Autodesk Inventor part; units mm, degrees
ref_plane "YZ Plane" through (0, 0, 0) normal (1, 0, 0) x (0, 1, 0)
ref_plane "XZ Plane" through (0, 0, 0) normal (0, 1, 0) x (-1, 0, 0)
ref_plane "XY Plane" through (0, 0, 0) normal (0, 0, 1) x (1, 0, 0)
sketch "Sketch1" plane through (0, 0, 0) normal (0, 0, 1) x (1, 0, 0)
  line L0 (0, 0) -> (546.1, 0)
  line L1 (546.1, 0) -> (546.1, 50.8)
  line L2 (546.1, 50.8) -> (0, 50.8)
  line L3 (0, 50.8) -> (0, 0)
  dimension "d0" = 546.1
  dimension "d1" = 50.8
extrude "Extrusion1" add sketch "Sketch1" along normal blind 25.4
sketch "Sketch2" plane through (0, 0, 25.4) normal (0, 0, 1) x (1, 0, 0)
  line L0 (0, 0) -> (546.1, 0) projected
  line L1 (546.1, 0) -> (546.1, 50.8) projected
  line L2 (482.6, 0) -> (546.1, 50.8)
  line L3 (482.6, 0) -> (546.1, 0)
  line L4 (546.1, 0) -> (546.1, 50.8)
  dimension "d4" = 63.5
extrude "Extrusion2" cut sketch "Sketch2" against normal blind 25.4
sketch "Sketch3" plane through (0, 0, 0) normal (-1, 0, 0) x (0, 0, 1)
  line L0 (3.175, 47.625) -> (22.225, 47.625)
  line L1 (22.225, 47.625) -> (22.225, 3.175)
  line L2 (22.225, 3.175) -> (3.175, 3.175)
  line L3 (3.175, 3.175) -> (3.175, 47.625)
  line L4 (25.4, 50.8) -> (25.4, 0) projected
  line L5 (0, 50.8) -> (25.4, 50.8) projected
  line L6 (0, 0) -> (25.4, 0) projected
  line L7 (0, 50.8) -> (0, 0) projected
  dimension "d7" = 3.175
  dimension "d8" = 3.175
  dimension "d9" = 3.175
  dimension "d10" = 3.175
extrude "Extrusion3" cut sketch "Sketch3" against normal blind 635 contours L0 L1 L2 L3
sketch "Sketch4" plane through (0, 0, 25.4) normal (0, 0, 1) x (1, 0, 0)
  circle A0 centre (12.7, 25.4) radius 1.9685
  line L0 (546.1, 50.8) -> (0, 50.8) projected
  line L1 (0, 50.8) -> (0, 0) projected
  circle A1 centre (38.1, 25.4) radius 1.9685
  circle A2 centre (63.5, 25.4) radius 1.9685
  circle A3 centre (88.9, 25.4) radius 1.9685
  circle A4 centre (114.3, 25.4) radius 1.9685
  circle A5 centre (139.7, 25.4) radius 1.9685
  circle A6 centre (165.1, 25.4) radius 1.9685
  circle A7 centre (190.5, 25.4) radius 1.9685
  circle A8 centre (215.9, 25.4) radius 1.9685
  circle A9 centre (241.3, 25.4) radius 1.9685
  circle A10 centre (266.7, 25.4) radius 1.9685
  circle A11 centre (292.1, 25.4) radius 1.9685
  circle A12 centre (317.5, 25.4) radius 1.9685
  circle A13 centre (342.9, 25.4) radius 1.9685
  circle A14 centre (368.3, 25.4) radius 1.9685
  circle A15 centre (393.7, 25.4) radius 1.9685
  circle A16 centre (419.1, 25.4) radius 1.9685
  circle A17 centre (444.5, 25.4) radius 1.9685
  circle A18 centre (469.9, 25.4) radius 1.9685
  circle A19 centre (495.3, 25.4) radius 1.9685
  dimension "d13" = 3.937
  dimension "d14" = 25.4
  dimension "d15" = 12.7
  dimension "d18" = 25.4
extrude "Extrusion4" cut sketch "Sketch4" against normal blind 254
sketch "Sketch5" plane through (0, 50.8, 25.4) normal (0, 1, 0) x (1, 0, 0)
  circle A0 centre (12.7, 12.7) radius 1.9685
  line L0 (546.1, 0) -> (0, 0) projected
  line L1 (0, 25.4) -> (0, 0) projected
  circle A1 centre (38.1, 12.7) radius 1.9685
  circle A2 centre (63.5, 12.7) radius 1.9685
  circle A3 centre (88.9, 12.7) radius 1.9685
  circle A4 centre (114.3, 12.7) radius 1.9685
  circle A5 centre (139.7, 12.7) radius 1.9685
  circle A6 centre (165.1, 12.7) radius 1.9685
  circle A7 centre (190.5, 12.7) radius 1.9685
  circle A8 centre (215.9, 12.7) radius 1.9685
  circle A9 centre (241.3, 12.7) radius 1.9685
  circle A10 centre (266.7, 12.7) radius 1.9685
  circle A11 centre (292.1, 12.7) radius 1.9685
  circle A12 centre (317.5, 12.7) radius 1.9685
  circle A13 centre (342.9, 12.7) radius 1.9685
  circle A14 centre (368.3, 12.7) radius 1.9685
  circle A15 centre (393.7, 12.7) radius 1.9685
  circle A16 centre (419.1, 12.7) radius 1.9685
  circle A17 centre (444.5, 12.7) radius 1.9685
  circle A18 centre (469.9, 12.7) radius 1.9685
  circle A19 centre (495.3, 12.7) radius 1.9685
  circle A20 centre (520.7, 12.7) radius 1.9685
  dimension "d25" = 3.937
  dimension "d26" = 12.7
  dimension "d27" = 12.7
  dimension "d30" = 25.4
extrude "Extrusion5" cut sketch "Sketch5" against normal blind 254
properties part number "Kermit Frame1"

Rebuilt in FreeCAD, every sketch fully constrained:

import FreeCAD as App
import Part
import Sketcher
Q = App.Units.Quantity


def add_polygon(sketch, points):
    """Adds a closed chain of lines whose ends are joined by coincident constraints."""
    first, n = sketch.GeometryCount, len(points)
    for a, b in zip(points, points[1:] + points[:1]):
        sketch.addGeometry(Part.LineSegment(App.Vector(*a, 0), App.Vector(*b, 0)), False)
    for i in range(n):
        sketch.addConstraint(Sketcher.Constraint("Coincident", first + i, 2, first + (i + 1) % n, 1))

doc = App.newDocument("Part")
body = doc.addObject("PartDesign::Body", "Body")

sketch1 = doc.addObject("Sketcher::SketchObject", "Sketch")
body.addObject(sketch1)
sketch1.AttachmentSupport = (doc.XY_Plane, [""])
sketch1.MapMode = "FlatFace"
add_polygon(sketch1, [(0, 51), (0, 0), (546, 0), (546, 51)])
sketch1.addConstraint(Sketcher.Constraint("Vertical", 0))
sketch1.addConstraint(Sketcher.Constraint("Horizontal", 1))
sketch1.addConstraint(Sketcher.Constraint("Vertical", 2))
sketch1.addConstraint(Sketcher.Constraint("Horizontal", 3))
sketch1.addConstraint(Sketcher.Constraint("Coincident", 0, 2, -1, 1))
sketch1.addConstraint(Sketcher.Constraint("DistanceY", 0, 2, 0, 1, Q("2 in")))
sketch1.addConstraint(Sketcher.Constraint("DistanceX", 1, 1, 1, 2, Q("21.5 in")))
pad1 = doc.addObject("PartDesign::Pad", "Pad")
body.addObject(pad1)
pad1.Profile = sketch1
pad1.Length = Q("1 in")

sketch2 = doc.addObject("Sketcher::SketchObject", "Sketch001")
body.addObject(sketch2)
sketch2.AttachmentSupport = (doc.XY_Plane, [""])
sketch2.MapMode = "FlatFace"
sketch2.AttachmentOffset = App.Placement(App.Vector(0, 0, 1 * 25.4), App.Rotation())
add_polygon(sketch2, [(546, 51), (483, 0), (546, 0)])
sketch2.addConstraint(Sketcher.Constraint("Horizontal", 1))
sketch2.addConstraint(Sketcher.Constraint("Vertical", 2))
sketch2.addConstraint(Sketcher.Constraint("PointOnObject", 0, 2, -1))
sketch2.addConstraint(Sketcher.Constraint("DistanceX", 1, 1, 1, 2, Q("2.5 in")))
sketch2.addConstraint(Sketcher.Constraint("DistanceY", 2, 1, 2, 2, Q("2 in")))
sketch2.addConstraint(Sketcher.Constraint("DistanceX", -1, 1, 0, 2, Q("19 in")))
pocket1 = doc.addObject("PartDesign::Pocket", "Pocket")
body.addObject(pocket1)
pocket1.Profile = sketch2
pocket1.Length = Q("1 in")

sketch3 = doc.addObject("Sketcher::SketchObject", "Sketch002")
body.addObject(sketch3)
sketch3.AttachmentSupport = (doc.YZ_Plane, [""])
sketch3.MapMode = "FlatFace"
add_polygon(sketch3, [(48, 22), (48, 3), (3, 3), (3, 22)])
sketch3.addConstraint(Sketcher.Constraint("Vertical", 0))
sketch3.addConstraint(Sketcher.Constraint("Horizontal", 1))
sketch3.addConstraint(Sketcher.Constraint("Vertical", 2))
sketch3.addConstraint(Sketcher.Constraint("Horizontal", 3))
sketch3.addConstraint(Sketcher.Constraint("DistanceY", -1, 1, 0, 2, Q("0.125 in")))
sketch3.addConstraint(Sketcher.Constraint("DistanceX", -1, 1, 1, 2, Q("0.125 in")))
sketch3.addConstraint(Sketcher.Constraint("DistanceX", 1, 2, 1, 1, Q("1.75 in")))
sketch3.addConstraint(Sketcher.Constraint("DistanceY", 0, 2, 0, 1, Q("0.75 in")))
pocket2 = doc.addObject("PartDesign::Pocket", "Pocket001")
body.addObject(pocket2)
pocket2.Profile = sketch3
pocket2.Length = Q("25 in")
pocket2.Reversed = True

sketch4 = doc.addObject("Sketcher::SketchObject", "Sketch003")
body.addObject(sketch4)
sketch4.AttachmentSupport = (doc.XY_Plane, [""])
sketch4.MapMode = "FlatFace"
sketch4.AttachmentOffset = App.Placement(App.Vector(0, 0, 1 * 25.4), App.Rotation())
sketch4.addGeometry(Part.Circle(App.Vector(12.7, 25.4, 0), App.Vector(0, 0, 1), 2), False)
sketch4.addGeometry(Part.Circle(App.Vector(38.1, 25.4, 0), App.Vector(0, 0, 1), 2), False)
sketch4.addGeometry(Part.Circle(App.Vector(63.5, 25.4, 0), App.Vector(0, 0, 1), 2), False)
sketch4.addGeometry(Part.Circle(App.Vector(88.9, 25.4, 0), App.Vector(0, 0, 1), 2), False)
sketch4.addGeometry(Part.Circle(App.Vector(114.3, 25.4, 0), App.Vector(0, 0, 1), 2), False)
sketch4.addGeometry(Part.Circle(App.Vector(139.7, 25.4, 0), App.Vector(0, 0, 1), 2), False)
sketch4.addGeometry(Part.Circle(App.Vector(165.1, 25.4, 0), App.Vector(0, 0, 1), 2), False)
sketch4.addGeometry(Part.Circle(App.Vector(190.5, 25.4, 0), App.Vector(0, 0, 1), 2), False)
sketch4.addGeometry(Part.Circle(App.Vector(215.9, 25.4, 0), App.Vector(0, 0, 1), 2), False)
sketch4.addGeometry(Part.Circle(App.Vector(241.3, 25.4, 0), App.Vector(0, 0, 1), 2), False)
sketch4.addGeometry(Part.Circle(App.Vector(266.7, 25.4, 0), App.Vector(0, 0, 1), 2), False)
sketch4.addGeometry(Part.Circle(App.Vector(292.1, 25.4, 0), App.Vector(0, 0, 1), 2), False)
sketch4.addGeometry(Part.Circle(App.Vector(317.5, 25.4, 0), App.Vector(0, 0, 1), 2), False)
sketch4.addGeometry(Part.Circle(App.Vector(342.9, 25.4, 0), App.Vector(0, 0, 1), 2), False)
sketch4.addGeometry(Part.Circle(App.Vector(368.3, 25.4, 0), App.Vector(0, 0, 1), 2), False)
sketch4.addGeometry(Part.Circle(App.Vector(393.7, 25.4, 0), App.Vector(0, 0, 1), 2), False)
sketch4.addGeometry(Part.Circle(App.Vector(419.1, 25.4, 0), App.Vector(0, 0, 1), 2), False)
sketch4.addGeometry(Part.Circle(App.Vector(444.5, 25.4, 0), App.Vector(0, 0, 1), 2), False)
sketch4.addGeometry(Part.Circle(App.Vector(469.9, 25.4, 0), App.Vector(0, 0, 1), 2), False)
sketch4.addGeometry(Part.Circle(App.Vector(495.3, 25.4, 0), App.Vector(0, 0, 1), 2), False)
sketch4.addConstraint(Sketcher.Constraint("Equal", 0, 1))
sketch4.addConstraint(Sketcher.Constraint("Equal", 1, 2))
sketch4.addConstraint(Sketcher.Constraint("Equal", 2, 3))
sketch4.addConstraint(Sketcher.Constraint("Equal", 3, 4))
sketch4.addConstraint(Sketcher.Constraint("Equal", 4, 5))
sketch4.addConstraint(Sketcher.Constraint("Equal", 5, 6))
sketch4.addConstraint(Sketcher.Constraint("Equal", 6, 7))
sketch4.addConstraint(Sketcher.Constraint("Equal", 7, 8))
sketch4.addConstraint(Sketcher.Constraint("Equal", 8, 9))
sketch4.addConstraint(Sketcher.Constraint("Equal", 9, 10))
sketch4.addConstraint(Sketcher.Constraint("Equal", 10, 11))
sketch4.addConstraint(Sketcher.Constraint("Equal", 11, 12))
sketch4.addConstraint(Sketcher.Constraint("Equal", 12, 13))
sketch4.addConstraint(Sketcher.Constraint("Equal", 13, 14))
sketch4.addConstraint(Sketcher.Constraint("Equal", 14, 15))
sketch4.addConstraint(Sketcher.Constraint("Equal", 15, 16))
sketch4.addConstraint(Sketcher.Constraint("Equal", 16, 17))
sketch4.addConstraint(Sketcher.Constraint("Equal", 17, 18))
sketch4.addConstraint(Sketcher.Constraint("Equal", 18, 19))
sketch4.addConstraint(Sketcher.Constraint("Horizontal", 0, 3, 1, 3))
sketch4.addConstraint(Sketcher.Constraint("Horizontal", 1, 3, 2, 3))
sketch4.addConstraint(Sketcher.Constraint("Horizontal", 2, 3, 3, 3))
sketch4.addConstraint(Sketcher.Constraint("Horizontal", 3, 3, 4, 3))
sketch4.addConstraint(Sketcher.Constraint("Horizontal", 4, 3, 5, 3))
sketch4.addConstraint(Sketcher.Constraint("Horizontal", 5, 3, 6, 3))
sketch4.addConstraint(Sketcher.Constraint("Horizontal", 6, 3, 7, 3))
sketch4.addConstraint(Sketcher.Constraint("Horizontal", 7, 3, 8, 3))
sketch4.addConstraint(Sketcher.Constraint("Horizontal", 8, 3, 9, 3))
sketch4.addConstraint(Sketcher.Constraint("Horizontal", 9, 3, 10, 3))
sketch4.addConstraint(Sketcher.Constraint("Horizontal", 10, 3, 11, 3))
sketch4.addConstraint(Sketcher.Constraint("Horizontal", 11, 3, 12, 3))
sketch4.addConstraint(Sketcher.Constraint("Horizontal", 12, 3, 13, 3))
sketch4.addConstraint(Sketcher.Constraint("Horizontal", 13, 3, 14, 3))
sketch4.addConstraint(Sketcher.Constraint("Horizontal", 14, 3, 15, 3))
sketch4.addConstraint(Sketcher.Constraint("Horizontal", 15, 3, 16, 3))
sketch4.addConstraint(Sketcher.Constraint("Horizontal", 16, 3, 17, 3))
sketch4.addConstraint(Sketcher.Constraint("Horizontal", 17, 3, 18, 3))
sketch4.addConstraint(Sketcher.Constraint("Horizontal", 18, 3, 19, 3))
sketch4.addConstraint(Sketcher.Constraint("Diameter", 0, Q("0.155 in")))
sketch4.addConstraint(Sketcher.Constraint("DistanceY", -1, 1, 0, 3, Q("1 in")))
sketch4.addConstraint(Sketcher.Constraint("DistanceX", 0, 3, 1, 3, Q("1 in")))
sketch4.addConstraint(Sketcher.Constraint("DistanceX", 1, 3, 2, 3, Q("1 in")))
sketch4.addConstraint(Sketcher.Constraint("DistanceX", 2, 3, 3, 3, Q("1 in")))
sketch4.addConstraint(Sketcher.Constraint("DistanceX", 3, 3, 4, 3, Q("1 in")))
sketch4.addConstraint(Sketcher.Constraint("DistanceX", 4, 3, 5, 3, Q("1 in")))
sketch4.addConstraint(Sketcher.Constraint("DistanceX", 5, 3, 6, 3, Q("1 in")))
sketch4.addConstraint(Sketcher.Constraint("DistanceX", 6, 3, 7, 3, Q("1 in")))
sketch4.addConstraint(Sketcher.Constraint("DistanceX", 7, 3, 8, 3, Q("1 in")))
sketch4.addConstraint(Sketcher.Constraint("DistanceX", 8, 3, 9, 3, Q("1 in")))
sketch4.addConstraint(Sketcher.Constraint("DistanceX", 9, 3, 10, 3, Q("1 in")))
sketch4.addConstraint(Sketcher.Constraint("DistanceX", 10, 3, 11, 3, Q("1 in")))
sketch4.addConstraint(Sketcher.Constraint("DistanceX", 11, 3, 12, 3, Q("1 in")))
sketch4.addConstraint(Sketcher.Constraint("DistanceX", 12, 3, 13, 3, Q("1 in")))
sketch4.addConstraint(Sketcher.Constraint("DistanceX", 13, 3, 14, 3, Q("1 in")))
sketch4.addConstraint(Sketcher.Constraint("DistanceX", 14, 3, 15, 3, Q("1 in")))
sketch4.addConstraint(Sketcher.Constraint("DistanceX", 15, 3, 16, 3, Q("1 in")))
sketch4.addConstraint(Sketcher.Constraint("DistanceX", 16, 3, 17, 3, Q("1 in")))
sketch4.addConstraint(Sketcher.Constraint("DistanceX", 17, 3, 18, 3, Q("1 in")))
sketch4.addConstraint(Sketcher.Constraint("DistanceX", 18, 3, 19, 3, Q("1 in")))
sketch4.addConstraint(Sketcher.Constraint("DistanceX", -1, 1, 0, 3, Q("0.5 in")))
pocket3 = doc.addObject("PartDesign::Pocket", "Pocket002")
body.addObject(pocket3)
pocket3.Profile = sketch4
pocket3.Length = Q("10 in")

sketch5 = doc.addObject("Sketcher::SketchObject", "Sketch004")
body.addObject(sketch5)
sketch5.AttachmentSupport = (doc.XZ_Plane, [""])
sketch5.MapMode = "FlatFace"
sketch5.AttachmentOffset = App.Placement(App.Vector(0, 0, -2 * 25.4), App.Rotation())
sketch5.addGeometry(Part.Circle(App.Vector(12.7, 12.7, 0), App.Vector(0, 0, 1), 2), False)
sketch5.addGeometry(Part.Circle(App.Vector(38.1, 12.7, 0), App.Vector(0, 0, 1), 2), False)
sketch5.addGeometry(Part.Circle(App.Vector(63.5, 12.7, 0), App.Vector(0, 0, 1), 2), False)
sketch5.addGeometry(Part.Circle(App.Vector(88.9, 12.7, 0), App.Vector(0, 0, 1), 2), False)
sketch5.addGeometry(Part.Circle(App.Vector(114.3, 12.7, 0), App.Vector(0, 0, 1), 2), False)
sketch5.addGeometry(Part.Circle(App.Vector(139.7, 12.7, 0), App.Vector(0, 0, 1), 2), False)
sketch5.addGeometry(Part.Circle(App.Vector(165.1, 12.7, 0), App.Vector(0, 0, 1), 2), False)
sketch5.addGeometry(Part.Circle(App.Vector(190.5, 12.7, 0), App.Vector(0, 0, 1), 2), False)
sketch5.addGeometry(Part.Circle(App.Vector(215.9, 12.7, 0), App.Vector(0, 0, 1), 2), False)
sketch5.addGeometry(Part.Circle(App.Vector(241.3, 12.7, 0), App.Vector(0, 0, 1), 2), False)
sketch5.addGeometry(Part.Circle(App.Vector(266.7, 12.7, 0), App.Vector(0, 0, 1), 2), False)
sketch5.addGeometry(Part.Circle(App.Vector(292.1, 12.7, 0), App.Vector(0, 0, 1), 2), False)
sketch5.addGeometry(Part.Circle(App.Vector(317.5, 12.7, 0), App.Vector(0, 0, 1), 2), False)
sketch5.addGeometry(Part.Circle(App.Vector(342.9, 12.7, 0), App.Vector(0, 0, 1), 2), False)
sketch5.addGeometry(Part.Circle(App.Vector(368.3, 12.7, 0), App.Vector(0, 0, 1), 2), False)
sketch5.addGeometry(Part.Circle(App.Vector(393.7, 12.7, 0), App.Vector(0, 0, 1), 2), False)
sketch5.addGeometry(Part.Circle(App.Vector(419.1, 12.7, 0), App.Vector(0, 0, 1), 2), False)
sketch5.addGeometry(Part.Circle(App.Vector(444.5, 12.7, 0), App.Vector(0, 0, 1), 2), False)
sketch5.addGeometry(Part.Circle(App.Vector(469.9, 12.7, 0), App.Vector(0, 0, 1), 2), False)
sketch5.addGeometry(Part.Circle(App.Vector(495.3, 12.7, 0), App.Vector(0, 0, 1), 2), False)
sketch5.addGeometry(Part.Circle(App.Vector(520.7, 12.7, 0), App.Vector(0, 0, 1), 2), False)
sketch5.addConstraint(Sketcher.Constraint("Equal", 0, 1))
sketch5.addConstraint(Sketcher.Constraint("Equal", 1, 2))
sketch5.addConstraint(Sketcher.Constraint("Equal", 2, 3))
sketch5.addConstraint(Sketcher.Constraint("Equal", 3, 4))
sketch5.addConstraint(Sketcher.Constraint("Equal", 4, 5))
sketch5.addConstraint(Sketcher.Constraint("Equal", 5, 6))
sketch5.addConstraint(Sketcher.Constraint("Equal", 6, 7))
sketch5.addConstraint(Sketcher.Constraint("Equal", 7, 8))
sketch5.addConstraint(Sketcher.Constraint("Equal", 8, 9))
sketch5.addConstraint(Sketcher.Constraint("Equal", 9, 10))
sketch5.addConstraint(Sketcher.Constraint("Equal", 10, 11))
sketch5.addConstraint(Sketcher.Constraint("Equal", 11, 12))
sketch5.addConstraint(Sketcher.Constraint("Equal", 12, 13))
sketch5.addConstraint(Sketcher.Constraint("Equal", 13, 14))
sketch5.addConstraint(Sketcher.Constraint("Equal", 14, 15))
sketch5.addConstraint(Sketcher.Constraint("Equal", 15, 16))
sketch5.addConstraint(Sketcher.Constraint("Equal", 16, 17))
sketch5.addConstraint(Sketcher.Constraint("Equal", 17, 18))
sketch5.addConstraint(Sketcher.Constraint("Equal", 18, 19))
sketch5.addConstraint(Sketcher.Constraint("Equal", 19, 20))
sketch5.addConstraint(Sketcher.Constraint("Horizontal", 0, 3, 1, 3))
sketch5.addConstraint(Sketcher.Constraint("Horizontal", 1, 3, 2, 3))
sketch5.addConstraint(Sketcher.Constraint("Horizontal", 2, 3, 3, 3))
sketch5.addConstraint(Sketcher.Constraint("Horizontal", 3, 3, 4, 3))
sketch5.addConstraint(Sketcher.Constraint("Horizontal", 4, 3, 5, 3))
sketch5.addConstraint(Sketcher.Constraint("Horizontal", 5, 3, 6, 3))
sketch5.addConstraint(Sketcher.Constraint("Horizontal", 6, 3, 7, 3))
sketch5.addConstraint(Sketcher.Constraint("Horizontal", 7, 3, 8, 3))
sketch5.addConstraint(Sketcher.Constraint("Horizontal", 8, 3, 9, 3))
sketch5.addConstraint(Sketcher.Constraint("Horizontal", 9, 3, 10, 3))
sketch5.addConstraint(Sketcher.Constraint("Horizontal", 10, 3, 11, 3))
sketch5.addConstraint(Sketcher.Constraint("Horizontal", 11, 3, 12, 3))
sketch5.addConstraint(Sketcher.Constraint("Horizontal", 12, 3, 13, 3))
sketch5.addConstraint(Sketcher.Constraint("Horizontal", 13, 3, 14, 3))
sketch5.addConstraint(Sketcher.Constraint("Horizontal", 14, 3, 15, 3))
sketch5.addConstraint(Sketcher.Constraint("Horizontal", 15, 3, 16, 3))
sketch5.addConstraint(Sketcher.Constraint("Horizontal", 16, 3, 17, 3))
sketch5.addConstraint(Sketcher.Constraint("Horizontal", 17, 3, 18, 3))
sketch5.addConstraint(Sketcher.Constraint("Horizontal", 18, 3, 19, 3))
sketch5.addConstraint(Sketcher.Constraint("Horizontal", 19, 3, 20, 3))
sketch5.addConstraint(Sketcher.Constraint("Diameter", 0, Q("0.155 in")))
sketch5.addConstraint(Sketcher.Constraint("DistanceX", 0, 3, 1, 3, Q("1 in")))
sketch5.addConstraint(Sketcher.Constraint("DistanceX", 1, 3, 2, 3, Q("1 in")))
sketch5.addConstraint(Sketcher.Constraint("DistanceX", 2, 3, 3, 3, Q("1 in")))
sketch5.addConstraint(Sketcher.Constraint("DistanceX", 3, 3, 4, 3, Q("1 in")))
sketch5.addConstraint(Sketcher.Constraint("DistanceX", 4, 3, 5, 3, Q("1 in")))
sketch5.addConstraint(Sketcher.Constraint("DistanceX", 5, 3, 6, 3, Q("1 in")))
sketch5.addConstraint(Sketcher.Constraint("DistanceX", 6, 3, 7, 3, Q("1 in")))
sketch5.addConstraint(Sketcher.Constraint("DistanceX", 7, 3, 8, 3, Q("1 in")))
sketch5.addConstraint(Sketcher.Constraint("DistanceX", 8, 3, 9, 3, Q("1 in")))
sketch5.addConstraint(Sketcher.Constraint("DistanceX", 9, 3, 10, 3, Q("1 in")))
sketch5.addConstraint(Sketcher.Constraint("DistanceX", 10, 3, 11, 3, Q("1 in")))
sketch5.addConstraint(Sketcher.Constraint("DistanceX", 11, 3, 12, 3, Q("1 in")))
sketch5.addConstraint(Sketcher.Constraint("DistanceX", 12, 3, 13, 3, Q("1 in")))
sketch5.addConstraint(Sketcher.Constraint("DistanceX", 13, 3, 14, 3, Q("1 in")))
sketch5.addConstraint(Sketcher.Constraint("DistanceX", 14, 3, 15, 3, Q("1 in")))
sketch5.addConstraint(Sketcher.Constraint("DistanceX", 15, 3, 16, 3, Q("1 in")))
sketch5.addConstraint(Sketcher.Constraint("DistanceX", 16, 3, 17, 3, Q("1 in")))
sketch5.addConstraint(Sketcher.Constraint("DistanceX", 17, 3, 18, 3, Q("1 in")))
sketch5.addConstraint(Sketcher.Constraint("DistanceX", 18, 3, 19, 3, Q("1 in")))
sketch5.addConstraint(Sketcher.Constraint("DistanceX", 19, 3, 20, 3, Q("1 in")))
sketch5.addConstraint(Sketcher.Constraint("DistanceX", -1, 1, 0, 3, Q("0.5 in")))
sketch5.addConstraint(Sketcher.Constraint("DistanceY", -1, 1, 0, 3, Q("0.5 in")))
pocket4 = doc.addObject("PartDesign::Pocket", "Pocket003")
body.addObject(pocket4)
pocket4.Profile = sketch5
pocket4.Length = Q("10 in")
pocket4.Reversed = True

doc.recompute()
